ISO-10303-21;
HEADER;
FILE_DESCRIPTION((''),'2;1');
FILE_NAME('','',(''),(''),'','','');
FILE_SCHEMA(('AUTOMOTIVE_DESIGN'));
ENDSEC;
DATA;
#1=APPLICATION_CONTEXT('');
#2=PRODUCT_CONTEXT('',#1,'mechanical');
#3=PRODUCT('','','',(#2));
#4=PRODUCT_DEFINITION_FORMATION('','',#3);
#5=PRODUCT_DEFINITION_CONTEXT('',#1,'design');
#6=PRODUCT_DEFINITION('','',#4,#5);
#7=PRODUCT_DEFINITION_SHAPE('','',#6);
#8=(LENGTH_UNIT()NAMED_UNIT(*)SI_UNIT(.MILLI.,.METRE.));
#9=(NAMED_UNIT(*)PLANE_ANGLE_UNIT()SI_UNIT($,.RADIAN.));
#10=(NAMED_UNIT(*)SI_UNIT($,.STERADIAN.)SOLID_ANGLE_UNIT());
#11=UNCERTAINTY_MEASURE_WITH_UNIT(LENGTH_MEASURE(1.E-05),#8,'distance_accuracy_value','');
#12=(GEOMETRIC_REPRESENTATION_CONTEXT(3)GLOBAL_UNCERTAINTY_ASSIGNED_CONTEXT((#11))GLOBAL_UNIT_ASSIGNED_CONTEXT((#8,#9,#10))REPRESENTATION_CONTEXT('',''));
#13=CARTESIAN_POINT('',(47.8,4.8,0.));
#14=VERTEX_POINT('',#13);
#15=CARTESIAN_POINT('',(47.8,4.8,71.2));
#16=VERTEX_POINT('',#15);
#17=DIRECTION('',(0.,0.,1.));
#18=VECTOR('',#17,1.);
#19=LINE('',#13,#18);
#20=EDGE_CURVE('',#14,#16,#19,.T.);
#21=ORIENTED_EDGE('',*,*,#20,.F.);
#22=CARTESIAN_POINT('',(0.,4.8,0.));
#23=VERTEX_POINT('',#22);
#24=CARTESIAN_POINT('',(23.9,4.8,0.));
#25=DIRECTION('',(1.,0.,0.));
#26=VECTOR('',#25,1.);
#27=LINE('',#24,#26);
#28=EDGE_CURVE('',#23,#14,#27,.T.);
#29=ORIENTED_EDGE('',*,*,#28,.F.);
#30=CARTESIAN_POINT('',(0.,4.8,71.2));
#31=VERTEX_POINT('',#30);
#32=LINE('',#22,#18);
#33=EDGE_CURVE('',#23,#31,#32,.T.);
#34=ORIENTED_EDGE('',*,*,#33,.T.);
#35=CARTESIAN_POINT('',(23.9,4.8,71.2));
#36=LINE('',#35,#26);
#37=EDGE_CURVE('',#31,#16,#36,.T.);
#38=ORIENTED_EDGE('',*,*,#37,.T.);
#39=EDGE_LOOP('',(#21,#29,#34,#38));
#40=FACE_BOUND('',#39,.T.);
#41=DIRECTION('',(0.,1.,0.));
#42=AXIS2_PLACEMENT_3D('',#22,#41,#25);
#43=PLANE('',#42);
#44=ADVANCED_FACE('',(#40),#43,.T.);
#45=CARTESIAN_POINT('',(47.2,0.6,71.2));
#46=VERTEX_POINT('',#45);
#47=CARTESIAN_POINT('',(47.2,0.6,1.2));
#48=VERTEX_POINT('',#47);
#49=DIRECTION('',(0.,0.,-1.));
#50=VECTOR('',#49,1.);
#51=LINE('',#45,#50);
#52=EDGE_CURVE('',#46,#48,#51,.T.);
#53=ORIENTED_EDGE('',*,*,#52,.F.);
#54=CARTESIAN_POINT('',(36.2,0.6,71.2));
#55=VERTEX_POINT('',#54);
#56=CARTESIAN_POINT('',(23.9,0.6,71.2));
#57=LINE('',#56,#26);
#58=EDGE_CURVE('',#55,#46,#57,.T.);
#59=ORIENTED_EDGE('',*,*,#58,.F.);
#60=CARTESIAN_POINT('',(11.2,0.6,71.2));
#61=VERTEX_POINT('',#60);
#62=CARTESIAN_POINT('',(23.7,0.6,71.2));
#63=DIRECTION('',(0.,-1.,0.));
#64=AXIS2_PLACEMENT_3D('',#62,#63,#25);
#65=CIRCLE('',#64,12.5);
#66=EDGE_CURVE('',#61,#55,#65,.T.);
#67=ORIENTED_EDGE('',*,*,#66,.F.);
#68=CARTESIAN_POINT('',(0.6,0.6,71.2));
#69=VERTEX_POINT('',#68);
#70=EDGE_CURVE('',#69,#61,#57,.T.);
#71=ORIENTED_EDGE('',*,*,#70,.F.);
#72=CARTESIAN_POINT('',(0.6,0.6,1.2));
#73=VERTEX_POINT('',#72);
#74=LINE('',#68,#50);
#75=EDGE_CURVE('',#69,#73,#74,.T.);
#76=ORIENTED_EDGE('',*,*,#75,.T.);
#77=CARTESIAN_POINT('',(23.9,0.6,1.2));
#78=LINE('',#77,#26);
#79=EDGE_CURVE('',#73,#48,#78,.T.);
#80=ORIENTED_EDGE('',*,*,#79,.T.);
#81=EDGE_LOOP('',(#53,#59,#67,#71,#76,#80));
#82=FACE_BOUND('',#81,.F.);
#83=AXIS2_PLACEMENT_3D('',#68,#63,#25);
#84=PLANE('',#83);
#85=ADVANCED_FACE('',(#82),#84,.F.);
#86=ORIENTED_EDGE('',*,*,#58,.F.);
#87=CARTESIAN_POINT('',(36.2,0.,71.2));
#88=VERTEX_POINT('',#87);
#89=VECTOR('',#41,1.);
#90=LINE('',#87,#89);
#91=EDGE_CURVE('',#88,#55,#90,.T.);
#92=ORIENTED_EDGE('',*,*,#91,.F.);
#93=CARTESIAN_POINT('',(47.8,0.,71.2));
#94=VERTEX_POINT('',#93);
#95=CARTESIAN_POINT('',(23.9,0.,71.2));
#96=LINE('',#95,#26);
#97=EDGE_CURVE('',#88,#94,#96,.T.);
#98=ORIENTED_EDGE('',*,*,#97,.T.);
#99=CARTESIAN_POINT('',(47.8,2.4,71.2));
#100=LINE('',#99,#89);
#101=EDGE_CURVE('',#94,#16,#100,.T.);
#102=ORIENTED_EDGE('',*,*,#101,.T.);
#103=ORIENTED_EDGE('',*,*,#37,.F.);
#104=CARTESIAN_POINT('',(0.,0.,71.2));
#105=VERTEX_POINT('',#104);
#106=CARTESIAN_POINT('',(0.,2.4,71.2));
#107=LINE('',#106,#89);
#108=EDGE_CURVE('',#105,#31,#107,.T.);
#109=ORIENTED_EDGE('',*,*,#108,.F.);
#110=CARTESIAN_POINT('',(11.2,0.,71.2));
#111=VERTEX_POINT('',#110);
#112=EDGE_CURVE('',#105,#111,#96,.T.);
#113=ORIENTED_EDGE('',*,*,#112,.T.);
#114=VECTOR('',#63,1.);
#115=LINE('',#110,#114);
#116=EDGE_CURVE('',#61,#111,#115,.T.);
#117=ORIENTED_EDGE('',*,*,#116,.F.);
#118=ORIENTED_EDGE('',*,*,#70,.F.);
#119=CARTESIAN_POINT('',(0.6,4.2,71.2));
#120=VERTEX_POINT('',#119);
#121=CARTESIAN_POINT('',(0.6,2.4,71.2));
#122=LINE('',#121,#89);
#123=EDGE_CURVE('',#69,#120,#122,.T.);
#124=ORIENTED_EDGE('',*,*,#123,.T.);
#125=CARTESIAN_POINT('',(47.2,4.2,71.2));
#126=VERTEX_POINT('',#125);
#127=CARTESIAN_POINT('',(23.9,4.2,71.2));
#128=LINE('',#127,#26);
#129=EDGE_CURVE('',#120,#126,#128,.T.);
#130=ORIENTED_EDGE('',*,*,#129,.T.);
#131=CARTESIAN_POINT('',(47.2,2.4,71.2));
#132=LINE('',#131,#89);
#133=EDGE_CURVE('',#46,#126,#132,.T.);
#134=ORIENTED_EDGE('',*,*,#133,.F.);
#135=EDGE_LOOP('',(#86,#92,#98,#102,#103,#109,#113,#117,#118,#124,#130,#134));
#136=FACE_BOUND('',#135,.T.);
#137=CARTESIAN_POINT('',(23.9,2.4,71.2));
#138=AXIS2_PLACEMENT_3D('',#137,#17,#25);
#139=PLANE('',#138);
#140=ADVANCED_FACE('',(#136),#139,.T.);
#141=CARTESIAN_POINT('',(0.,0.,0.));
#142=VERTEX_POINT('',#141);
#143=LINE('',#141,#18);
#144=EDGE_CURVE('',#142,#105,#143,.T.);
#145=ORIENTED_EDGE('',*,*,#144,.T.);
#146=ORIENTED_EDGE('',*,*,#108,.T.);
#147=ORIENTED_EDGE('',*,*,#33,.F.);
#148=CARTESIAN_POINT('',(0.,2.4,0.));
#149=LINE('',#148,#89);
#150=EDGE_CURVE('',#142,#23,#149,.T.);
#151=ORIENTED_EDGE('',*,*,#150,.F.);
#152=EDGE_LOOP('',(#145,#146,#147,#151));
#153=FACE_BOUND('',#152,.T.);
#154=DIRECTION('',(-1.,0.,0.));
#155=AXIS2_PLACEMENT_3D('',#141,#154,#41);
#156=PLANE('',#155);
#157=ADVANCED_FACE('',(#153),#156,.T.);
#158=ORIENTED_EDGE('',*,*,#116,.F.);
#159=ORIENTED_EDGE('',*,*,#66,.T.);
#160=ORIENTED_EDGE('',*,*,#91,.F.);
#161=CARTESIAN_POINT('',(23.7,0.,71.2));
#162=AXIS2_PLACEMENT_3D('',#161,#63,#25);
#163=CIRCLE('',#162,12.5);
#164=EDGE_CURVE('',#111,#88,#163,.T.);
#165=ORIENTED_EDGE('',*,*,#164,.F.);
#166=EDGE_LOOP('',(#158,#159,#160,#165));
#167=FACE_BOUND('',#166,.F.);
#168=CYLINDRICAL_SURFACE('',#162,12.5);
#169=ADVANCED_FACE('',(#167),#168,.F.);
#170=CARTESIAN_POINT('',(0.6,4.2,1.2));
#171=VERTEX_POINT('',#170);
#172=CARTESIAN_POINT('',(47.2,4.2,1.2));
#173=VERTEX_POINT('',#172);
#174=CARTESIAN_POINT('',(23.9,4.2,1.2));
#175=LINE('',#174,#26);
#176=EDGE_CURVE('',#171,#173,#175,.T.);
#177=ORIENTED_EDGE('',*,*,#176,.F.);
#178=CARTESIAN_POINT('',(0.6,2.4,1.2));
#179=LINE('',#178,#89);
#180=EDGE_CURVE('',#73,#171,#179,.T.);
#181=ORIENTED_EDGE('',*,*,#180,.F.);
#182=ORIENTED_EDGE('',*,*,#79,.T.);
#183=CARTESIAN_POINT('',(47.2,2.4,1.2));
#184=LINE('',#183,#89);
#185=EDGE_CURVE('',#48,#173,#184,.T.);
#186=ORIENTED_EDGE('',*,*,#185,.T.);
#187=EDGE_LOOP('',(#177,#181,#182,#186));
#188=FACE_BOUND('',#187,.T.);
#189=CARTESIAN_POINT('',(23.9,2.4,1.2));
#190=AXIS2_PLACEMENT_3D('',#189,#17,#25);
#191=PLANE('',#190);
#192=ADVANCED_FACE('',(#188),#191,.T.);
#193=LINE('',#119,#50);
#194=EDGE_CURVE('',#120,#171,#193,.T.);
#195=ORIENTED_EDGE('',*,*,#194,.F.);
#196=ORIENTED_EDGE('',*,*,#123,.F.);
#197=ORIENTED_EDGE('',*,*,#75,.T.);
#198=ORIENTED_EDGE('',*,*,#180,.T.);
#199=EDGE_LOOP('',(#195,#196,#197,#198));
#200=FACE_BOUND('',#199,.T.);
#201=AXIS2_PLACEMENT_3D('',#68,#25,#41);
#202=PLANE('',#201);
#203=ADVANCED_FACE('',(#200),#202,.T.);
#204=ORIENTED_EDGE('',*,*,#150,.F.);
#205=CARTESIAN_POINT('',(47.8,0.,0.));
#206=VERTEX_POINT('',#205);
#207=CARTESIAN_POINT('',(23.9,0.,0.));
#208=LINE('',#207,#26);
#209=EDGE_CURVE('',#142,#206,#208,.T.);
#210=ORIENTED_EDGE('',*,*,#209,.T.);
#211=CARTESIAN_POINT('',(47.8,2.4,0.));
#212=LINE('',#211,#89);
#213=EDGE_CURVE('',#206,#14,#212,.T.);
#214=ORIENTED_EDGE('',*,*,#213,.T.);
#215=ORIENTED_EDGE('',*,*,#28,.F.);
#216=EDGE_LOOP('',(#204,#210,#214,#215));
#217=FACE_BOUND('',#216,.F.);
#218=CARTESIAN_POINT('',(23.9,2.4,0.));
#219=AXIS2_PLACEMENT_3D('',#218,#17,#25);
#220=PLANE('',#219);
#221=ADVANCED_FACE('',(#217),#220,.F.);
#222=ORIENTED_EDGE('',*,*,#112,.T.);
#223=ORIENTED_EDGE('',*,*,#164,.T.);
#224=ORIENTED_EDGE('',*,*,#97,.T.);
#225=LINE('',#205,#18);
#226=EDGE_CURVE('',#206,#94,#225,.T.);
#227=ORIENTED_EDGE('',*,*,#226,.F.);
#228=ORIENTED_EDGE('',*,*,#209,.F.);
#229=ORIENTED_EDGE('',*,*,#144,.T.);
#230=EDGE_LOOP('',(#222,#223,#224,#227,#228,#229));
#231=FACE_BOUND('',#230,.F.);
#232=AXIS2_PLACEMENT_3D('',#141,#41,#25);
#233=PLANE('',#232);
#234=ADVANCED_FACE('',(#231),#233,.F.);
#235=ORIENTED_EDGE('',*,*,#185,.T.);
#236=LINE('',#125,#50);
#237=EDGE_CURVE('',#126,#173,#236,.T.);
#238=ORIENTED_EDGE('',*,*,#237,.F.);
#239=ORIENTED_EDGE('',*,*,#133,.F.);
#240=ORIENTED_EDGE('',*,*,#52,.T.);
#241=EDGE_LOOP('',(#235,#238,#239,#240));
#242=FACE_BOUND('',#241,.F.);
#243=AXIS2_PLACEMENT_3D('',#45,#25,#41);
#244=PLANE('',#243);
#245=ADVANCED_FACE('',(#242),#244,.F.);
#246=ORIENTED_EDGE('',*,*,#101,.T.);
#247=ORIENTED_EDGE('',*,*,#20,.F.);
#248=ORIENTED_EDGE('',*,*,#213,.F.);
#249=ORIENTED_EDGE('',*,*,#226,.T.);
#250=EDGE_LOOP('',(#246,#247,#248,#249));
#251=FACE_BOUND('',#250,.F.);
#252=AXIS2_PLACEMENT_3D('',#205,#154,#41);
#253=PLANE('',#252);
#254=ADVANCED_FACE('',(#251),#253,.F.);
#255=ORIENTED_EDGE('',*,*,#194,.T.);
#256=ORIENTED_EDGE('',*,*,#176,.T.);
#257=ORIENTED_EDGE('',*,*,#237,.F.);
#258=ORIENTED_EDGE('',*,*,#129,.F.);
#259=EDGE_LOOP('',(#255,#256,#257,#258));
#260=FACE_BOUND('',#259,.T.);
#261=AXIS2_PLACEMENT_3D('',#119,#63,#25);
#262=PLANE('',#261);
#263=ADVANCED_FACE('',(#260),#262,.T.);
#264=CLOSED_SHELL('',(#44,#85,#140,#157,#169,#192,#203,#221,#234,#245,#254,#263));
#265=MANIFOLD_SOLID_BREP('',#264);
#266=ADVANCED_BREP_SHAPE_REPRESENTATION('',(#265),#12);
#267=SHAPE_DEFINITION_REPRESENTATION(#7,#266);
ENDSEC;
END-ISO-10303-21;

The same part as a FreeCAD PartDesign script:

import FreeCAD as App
import Part
import Sketcher


def add_polygon(sketch, points):
    """Adds a closed chain of lines whose ends are joined by coincident constraints."""
    first, n = sketch.GeometryCount, len(points)
    for a, b in zip(points, points[1:] + points[:1]):
        sketch.addGeometry(Part.LineSegment(App.Vector(*a, 0), App.Vector(*b, 0)), False)
    for i in range(n):
        sketch.addConstraint(Sketcher.Constraint("Coincident", first + i, 2, first + (i + 1) % n, 1))

doc = App.newDocument("Part")
params = doc.addObject("Spreadsheet::Sheet", "Params")
for row, (alias, value) in enumerate([
    ("sketch1_width", "47.8 mm"),
    ("sketch1_height", "4.8 mm"),
    ("pad1_length", "71.2 mm"),
    ("sketch2_width", "46.6 mm"),
    ("sketch2_height", "3.6 mm"),
    ("pocket1_length", "70 mm"),
    ("sketch3_diameter", "25 mm"),
    ("pocket2_length", "0.6 mm"),
], start=1):
    params.set(f"A{row}", alias)
    params.set(f"B{row}", "=" + value)
    params.setAlias(f"B{row}", alias)

body = doc.addObject("PartDesign::Body", "Body")

# Sketch on XY plane
sketch1 = body.newObject("Sketcher::SketchObject", "Sketch")
sketch1.AttachmentSupport = (doc.getObject("XY_Plane"), [""])
sketch1.MapMode = "FlatFace"
add_polygon(sketch1, [(0, 4.8), (0, 0), (47.8, 0), (47.8, 4.8)])  # lines 0-3
sketch1.addConstraint([
    Sketcher.Constraint("Vertical", 0),
    Sketcher.Constraint("Horizontal", 1),
    Sketcher.Constraint("Vertical", 2),
    Sketcher.Constraint("Horizontal", 3),
    Sketcher.Constraint("Coincident", 0, 2, -1, 1),
    Sketcher.Constraint("DistanceX", 1, 1, 1, 2, 47.8),
    Sketcher.Constraint("DistanceY", 0, 2, 0, 1, 4.8),
])
sketch1.setExpression("Constraints[9]", "Params.sketch1_width")
sketch1.setExpression("Constraints[10]", "Params.sketch1_height")
pad1 = body.newObject("PartDesign::Pad", "Pad")
pad1.Profile = sketch1
pad1.setExpression("Length", "Params.pad1_length")

# Sketch on XY plane
sketch2 = body.newObject("Sketcher::SketchObject", "Sketch001")
sketch2.AttachmentSupport = (doc.getObject("XY_Plane"), [""])
sketch2.MapMode = "FlatFace"
sketch2.AttachmentOffset = App.Placement(App.Vector(0, 0, 71.2), App.Rotation())
add_polygon(sketch2, [(0.6, 4.2), (0.6, 0.6), (47.2, 0.6), (47.2, 4.2)])  # lines 0-3
sketch2.addConstraint([
    Sketcher.Constraint("Vertical", 0),
    Sketcher.Constraint("Horizontal", 1),
    Sketcher.Constraint("Vertical", 2),
    Sketcher.Constraint("Horizontal", 3),
    Sketcher.Constraint("DistanceX", 1, 1, 1, 2, 46.6),
    Sketcher.Constraint("DistanceY", 0, 2, 0, 1, 3.6),
    Sketcher.Constraint("DistanceX", -1, 1, 0, 2, 0.6),
    Sketcher.Constraint("DistanceY", -1, 1, 0, 2, 0.6),
])
sketch2.setExpression("Constraints[8]", "Params.sketch2_width")
sketch2.setExpression("Constraints[9]", "Params.sketch2_height")
pocket1 = body.newObject("PartDesign::Pocket", "Pocket")
pocket1.Profile = sketch2
pocket1.setExpression("Length", "Params.pocket1_length")

# Sketch on XZ plane
sketch3 = body.newObject("Sketcher::SketchObject", "Sketch002")
sketch3.AttachmentSupport = (doc.getObject("XZ_Plane"), [""])
sketch3.MapMode = "FlatFace"
sketch3.addGeometry(Part.Circle(App.Vector(23.7, 71.2, 0), App.Vector(0, 0, 1), 12.5), False)
sketch3.addConstraint([
    Sketcher.Constraint("Diameter", 0, 25.0),
    Sketcher.Constraint("DistanceX", -1, 1, 0, 3, 23.7),
    Sketcher.Constraint("DistanceY", -1, 1, 0, 3, 71.2),
])
sketch3.setExpression("Constraints[0]", "Params.sketch3_diameter")
pocket2 = body.newObject("PartDesign::Pocket", "Pocket001")
pocket2.Profile = sketch3
pocket2.setExpression("Length", "Params.pocket2_length")

doc.recompute()
